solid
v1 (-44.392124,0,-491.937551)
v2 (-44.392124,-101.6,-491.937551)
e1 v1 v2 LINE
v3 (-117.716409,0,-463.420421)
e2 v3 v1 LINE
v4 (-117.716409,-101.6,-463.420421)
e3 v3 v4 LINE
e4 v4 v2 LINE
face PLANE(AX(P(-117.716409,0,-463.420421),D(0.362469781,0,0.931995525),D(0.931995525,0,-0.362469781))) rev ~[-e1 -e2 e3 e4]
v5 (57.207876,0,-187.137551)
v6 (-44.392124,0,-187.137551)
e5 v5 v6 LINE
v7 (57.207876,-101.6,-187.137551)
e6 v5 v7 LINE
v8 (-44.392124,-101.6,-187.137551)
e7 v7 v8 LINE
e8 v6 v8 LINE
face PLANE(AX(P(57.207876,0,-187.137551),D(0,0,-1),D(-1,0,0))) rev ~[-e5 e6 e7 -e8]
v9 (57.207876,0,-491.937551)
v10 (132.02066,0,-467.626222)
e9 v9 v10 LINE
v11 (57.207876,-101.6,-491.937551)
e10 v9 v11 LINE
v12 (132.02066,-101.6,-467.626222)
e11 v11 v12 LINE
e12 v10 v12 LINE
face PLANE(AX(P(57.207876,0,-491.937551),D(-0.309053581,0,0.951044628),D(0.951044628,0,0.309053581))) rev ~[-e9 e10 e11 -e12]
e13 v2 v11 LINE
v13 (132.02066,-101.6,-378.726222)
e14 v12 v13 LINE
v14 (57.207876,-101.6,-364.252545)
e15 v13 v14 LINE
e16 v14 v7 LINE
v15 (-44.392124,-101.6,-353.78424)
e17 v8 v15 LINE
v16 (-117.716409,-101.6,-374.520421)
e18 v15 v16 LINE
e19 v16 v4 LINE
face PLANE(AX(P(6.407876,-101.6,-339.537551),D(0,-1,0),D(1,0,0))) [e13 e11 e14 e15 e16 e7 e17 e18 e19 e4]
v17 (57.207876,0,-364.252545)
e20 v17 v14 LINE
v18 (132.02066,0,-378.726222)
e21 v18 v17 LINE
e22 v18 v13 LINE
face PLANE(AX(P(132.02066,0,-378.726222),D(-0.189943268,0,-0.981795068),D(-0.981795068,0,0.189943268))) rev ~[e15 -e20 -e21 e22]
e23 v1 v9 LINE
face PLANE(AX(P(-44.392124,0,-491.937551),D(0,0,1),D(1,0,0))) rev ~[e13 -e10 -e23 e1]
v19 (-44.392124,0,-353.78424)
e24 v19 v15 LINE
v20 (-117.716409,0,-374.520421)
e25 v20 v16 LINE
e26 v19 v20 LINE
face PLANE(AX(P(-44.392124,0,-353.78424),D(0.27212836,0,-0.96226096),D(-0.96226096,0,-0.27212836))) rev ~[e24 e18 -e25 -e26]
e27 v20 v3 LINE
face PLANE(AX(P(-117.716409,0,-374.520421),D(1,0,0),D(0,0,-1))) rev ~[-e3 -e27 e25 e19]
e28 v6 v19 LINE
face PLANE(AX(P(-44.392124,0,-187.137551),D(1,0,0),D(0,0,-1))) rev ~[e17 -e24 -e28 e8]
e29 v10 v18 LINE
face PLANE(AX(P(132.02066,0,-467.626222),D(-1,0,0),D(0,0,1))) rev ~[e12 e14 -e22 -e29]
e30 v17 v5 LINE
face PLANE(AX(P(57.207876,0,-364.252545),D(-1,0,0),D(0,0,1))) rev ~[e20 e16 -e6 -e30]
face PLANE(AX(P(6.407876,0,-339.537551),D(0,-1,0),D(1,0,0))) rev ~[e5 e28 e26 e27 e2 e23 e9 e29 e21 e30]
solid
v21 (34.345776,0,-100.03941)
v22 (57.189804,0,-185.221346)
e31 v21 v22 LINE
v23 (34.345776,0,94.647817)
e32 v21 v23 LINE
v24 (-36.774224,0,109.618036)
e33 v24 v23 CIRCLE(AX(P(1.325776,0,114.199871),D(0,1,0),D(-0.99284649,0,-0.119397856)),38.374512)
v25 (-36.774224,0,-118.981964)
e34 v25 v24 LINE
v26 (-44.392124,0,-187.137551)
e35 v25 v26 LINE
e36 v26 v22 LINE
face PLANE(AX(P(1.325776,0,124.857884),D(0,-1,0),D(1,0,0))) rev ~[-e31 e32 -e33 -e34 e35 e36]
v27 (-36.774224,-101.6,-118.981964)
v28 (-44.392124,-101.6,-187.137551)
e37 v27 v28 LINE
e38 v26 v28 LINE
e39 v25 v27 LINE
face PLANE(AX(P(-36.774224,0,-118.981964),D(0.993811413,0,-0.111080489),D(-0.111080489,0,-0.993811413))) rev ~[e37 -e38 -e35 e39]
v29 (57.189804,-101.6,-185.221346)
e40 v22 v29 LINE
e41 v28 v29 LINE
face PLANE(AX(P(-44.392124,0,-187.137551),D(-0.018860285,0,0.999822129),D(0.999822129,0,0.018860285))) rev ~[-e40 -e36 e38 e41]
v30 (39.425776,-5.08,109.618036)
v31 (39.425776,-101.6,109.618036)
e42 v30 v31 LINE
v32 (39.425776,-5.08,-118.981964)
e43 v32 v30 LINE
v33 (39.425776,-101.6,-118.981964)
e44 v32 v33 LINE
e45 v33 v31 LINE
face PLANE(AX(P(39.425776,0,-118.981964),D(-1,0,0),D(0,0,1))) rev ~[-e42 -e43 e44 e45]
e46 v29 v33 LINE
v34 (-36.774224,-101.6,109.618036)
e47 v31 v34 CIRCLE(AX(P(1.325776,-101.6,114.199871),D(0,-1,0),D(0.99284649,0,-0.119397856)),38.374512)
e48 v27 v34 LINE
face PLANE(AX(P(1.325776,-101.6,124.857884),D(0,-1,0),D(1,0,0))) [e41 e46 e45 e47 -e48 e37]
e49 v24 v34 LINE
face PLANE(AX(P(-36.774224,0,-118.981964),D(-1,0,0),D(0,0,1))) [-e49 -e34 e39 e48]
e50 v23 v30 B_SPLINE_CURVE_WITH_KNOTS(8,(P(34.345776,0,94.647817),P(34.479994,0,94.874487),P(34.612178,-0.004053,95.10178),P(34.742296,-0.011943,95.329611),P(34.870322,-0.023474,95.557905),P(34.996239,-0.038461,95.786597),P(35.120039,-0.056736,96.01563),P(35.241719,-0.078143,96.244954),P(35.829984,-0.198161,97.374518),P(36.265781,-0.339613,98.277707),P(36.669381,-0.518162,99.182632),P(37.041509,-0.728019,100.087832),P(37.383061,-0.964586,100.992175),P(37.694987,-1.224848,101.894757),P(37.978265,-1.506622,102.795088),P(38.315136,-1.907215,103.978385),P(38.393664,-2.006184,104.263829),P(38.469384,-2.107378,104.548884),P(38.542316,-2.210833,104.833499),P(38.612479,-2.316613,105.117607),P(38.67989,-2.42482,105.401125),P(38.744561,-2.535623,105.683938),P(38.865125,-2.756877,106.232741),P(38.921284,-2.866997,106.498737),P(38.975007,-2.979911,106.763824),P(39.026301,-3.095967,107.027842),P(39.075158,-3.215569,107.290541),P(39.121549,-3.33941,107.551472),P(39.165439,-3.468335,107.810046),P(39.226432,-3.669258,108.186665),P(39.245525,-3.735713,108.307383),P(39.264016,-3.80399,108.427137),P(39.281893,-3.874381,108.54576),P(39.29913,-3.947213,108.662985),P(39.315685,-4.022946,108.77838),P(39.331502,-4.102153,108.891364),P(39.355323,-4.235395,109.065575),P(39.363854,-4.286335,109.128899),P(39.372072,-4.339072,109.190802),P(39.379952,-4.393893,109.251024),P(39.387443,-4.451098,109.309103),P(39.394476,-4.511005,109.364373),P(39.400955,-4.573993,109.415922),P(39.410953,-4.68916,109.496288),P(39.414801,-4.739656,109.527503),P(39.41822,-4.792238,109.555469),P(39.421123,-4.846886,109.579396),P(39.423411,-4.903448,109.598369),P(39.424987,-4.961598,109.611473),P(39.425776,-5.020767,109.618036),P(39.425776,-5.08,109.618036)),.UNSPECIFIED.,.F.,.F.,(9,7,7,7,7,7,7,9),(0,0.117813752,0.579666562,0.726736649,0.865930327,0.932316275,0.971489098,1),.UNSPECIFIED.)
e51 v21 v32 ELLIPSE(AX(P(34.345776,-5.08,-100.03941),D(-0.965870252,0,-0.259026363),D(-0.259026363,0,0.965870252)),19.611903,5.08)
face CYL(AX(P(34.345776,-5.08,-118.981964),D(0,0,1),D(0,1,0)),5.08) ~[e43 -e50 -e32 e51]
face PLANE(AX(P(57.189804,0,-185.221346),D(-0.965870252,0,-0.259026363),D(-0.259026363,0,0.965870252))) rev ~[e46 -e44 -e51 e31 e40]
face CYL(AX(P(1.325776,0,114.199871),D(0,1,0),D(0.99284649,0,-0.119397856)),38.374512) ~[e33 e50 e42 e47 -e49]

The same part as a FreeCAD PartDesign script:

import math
import FreeCAD as App
import Part
import Sketcher

V = App.Vector
Q = App.Units.Quantity


def edges_at(feature, points):
    """Names of the edges that pass closest to the given points."""
    edges = feature.Shape.Edges
    near = lambda p: min(range(len(edges)), key=lambda i: edges[i].distToShape(Part.Vertex(*p))[0])
    return sorted({f"Edge{near(p) + 1}" for p in points})


def add_polygon(sketch, points):
    """Adds a closed chain of lines whose ends are joined by coincident constraints."""
    first, n = sketch.GeometryCount, len(points)
    for a, b in zip(points, points[1:] + points[:1]):
        sketch.addGeometry(Part.LineSegment(App.Vector(*a, 0), App.Vector(*b, 0)), False)
    for i in range(n):
        sketch.addConstraint(Sketcher.Constraint("Coincident", first + i, 2, first + (i + 1) % n, 1))

doc = App.newDocument("Part")
body = doc.addObject("PartDesign::Body", "Body")
body.AllowCompound = True

sketch1 = body.newObject("Sketcher::SketchObject", "Sketch")
sketch1.AttachmentSupport = (doc.getObject("XZ_Plane"), [""])
sketch1.MapMode = "FlatFace"
sketch1.addGeometry(Part.ArcOfCircle(Part.Circle(V(1, 114, 0), V(0, 0, 1), 38), math.radians(-7), math.radians(187)), False)
sketch1.addGeometry(Part.LineSegment(V(-37, 110, 0), V(-37, -119, 0)), False)
sketch1.addGeometry(Part.LineSegment(V(-37, -119, 0), V(-44, -187, 0)), False)
sketch1.addGeometry(Part.LineSegment(V(-44, -187, 0), V(57, -185, 0)), False)
sketch1.addGeometry(Part.LineSegment(V(57, -185, 0), V(39, -119, 0)), False)
sketch1.addGeometry(Part.LineSegment(V(39, -119, 0), V(39, 110, 0)), False)
add_polygon(sketch1, [(57, -187), (-44, -187), (-44, -354), (-118, -375), (-118, -463), (-44, -492), (57, -492), (132, -468), (132, -379), (57, -364)])
sketch1.addConstraint(Sketcher.Constraint("Coincident", 0, 2, 1, 1))
sketch1.addConstraint(Sketcher.Constraint("Coincident", 1, 2, 2, 1))
sketch1.addConstraint(Sketcher.Constraint("Coincident", 2, 2, 3, 1))
sketch1.addConstraint(Sketcher.Constraint("Coincident", 3, 2, 4, 1))
sketch1.addConstraint(Sketcher.Constraint("Coincident", 4, 2, 5, 1))
sketch1.addConstraint(Sketcher.Constraint("Coincident", 5, 2, 0, 1))
sketch1.addConstraint(Sketcher.Constraint("Vertical", 1))
sketch1.addConstraint(Sketcher.Constraint("Vertical", 5))
sketch1.addConstraint(Sketcher.Constraint("Horizontal", 6))
sketch1.addConstraint(Sketcher.Constraint("Vertical", 7))
sketch1.addConstraint(Sketcher.Constraint("Vertical", 9))
sketch1.addConstraint(Sketcher.Constraint("Horizontal", 11))
sketch1.addConstraint(Sketcher.Constraint("Vertical", 13))
sketch1.addConstraint(Sketcher.Constraint("Vertical", 15))
sketch1.addConstraint(Sketcher.Constraint("Coincident", 6, 2, 2, 2))
sketch1.addConstraint(Sketcher.Constraint("Horizontal", 1, 2, 4, 2))
sketch1.addConstraint(Sketcher.Constraint("Horizontal", 0, 2, 5, 2))
sketch1.addConstraint(Sketcher.Constraint("Vertical", 7, 2, 10, 2))
sketch1.addConstraint(Sketcher.Constraint("Vertical", 11, 2, 14, 2))
sketch1.addConstraint(Sketcher.Constraint("Equal", 9, 13))
sketch1.addConstraint(Sketcher.Constraint("Equal", 2, 4))
sketch1.addConstraint(Sketcher.Constraint("Equal", 8, 14))
sketch1.addConstraint(Sketcher.Constraint("DistanceX", 6, 2, 6, 1, Q("4 in")))
sketch1.addConstraint(Sketcher.Constraint("DistanceY", 1, 2, 1, 1, Q("9 in")))
sketch1.addConstraint(Sketcher.Constraint("Distance", 3, Q("4 in")))
sketch1.addConstraint(Sketcher.Constraint("Distance", 8, Q("3 in")))
sketch1.addConstraint(Sketcher.Constraint("DistanceY", 9, 2, 9, 1, Q("3.5 in")))
sketch1.addConstraint(Sketcher.Constraint("DistanceX", 1, 2, 4, 2, Q("3 in")))
sketch1.addConstraint(Sketcher.Constraint("DistanceY", 10, 2, 2, 2, Q("12 in")))
sketch1.addConstraint(Sketcher.Constraint("Distance", 2, Q("2.7 in")))
sketch1.addConstraint(Sketcher.Constraint("Distance", 12, Q("3.097 in")))
sketch1.addConstraint(Sketcher.Constraint("Radius", 0, 38.374512))
sketch1.addConstraint(Sketcher.Constraint("DistanceX", 8, 2, 1, 2, Q("3.1867002 in")))
sketch1.addConstraint(Sketcher.Constraint("DistanceY", 7, 2, 7, 1, 166.646689))
sketch1.addConstraint(Sketcher.Constraint("DistanceX", 2, 2, 1, 2, 7.6179))
sketch1.addConstraint(Sketcher.Constraint("DistanceY", 12, 2, 9, 2, 4.205801))
sketch1.addConstraint(Sketcher.Constraint("DistanceY", -1, 1, 0, 3, 114.199871))
sketch1.addConstraint(Sketcher.Constraint("DistanceX", 8, 2, -1, 1, 117.716409))
pad1 = body.newObject("PartDesign::Pad", "Pad")
pad1.Profile = sketch1
pad1.Length = Q("4 in")
doc.recompute()

fillet = body.newObject("PartDesign::Fillet", "Fillet")
fillet.Base = (pad1, edges_at(pad1, [(39.426, 0, -4.682)]))
fillet.Radius = Q("0.2 in")

doc.recompute()
